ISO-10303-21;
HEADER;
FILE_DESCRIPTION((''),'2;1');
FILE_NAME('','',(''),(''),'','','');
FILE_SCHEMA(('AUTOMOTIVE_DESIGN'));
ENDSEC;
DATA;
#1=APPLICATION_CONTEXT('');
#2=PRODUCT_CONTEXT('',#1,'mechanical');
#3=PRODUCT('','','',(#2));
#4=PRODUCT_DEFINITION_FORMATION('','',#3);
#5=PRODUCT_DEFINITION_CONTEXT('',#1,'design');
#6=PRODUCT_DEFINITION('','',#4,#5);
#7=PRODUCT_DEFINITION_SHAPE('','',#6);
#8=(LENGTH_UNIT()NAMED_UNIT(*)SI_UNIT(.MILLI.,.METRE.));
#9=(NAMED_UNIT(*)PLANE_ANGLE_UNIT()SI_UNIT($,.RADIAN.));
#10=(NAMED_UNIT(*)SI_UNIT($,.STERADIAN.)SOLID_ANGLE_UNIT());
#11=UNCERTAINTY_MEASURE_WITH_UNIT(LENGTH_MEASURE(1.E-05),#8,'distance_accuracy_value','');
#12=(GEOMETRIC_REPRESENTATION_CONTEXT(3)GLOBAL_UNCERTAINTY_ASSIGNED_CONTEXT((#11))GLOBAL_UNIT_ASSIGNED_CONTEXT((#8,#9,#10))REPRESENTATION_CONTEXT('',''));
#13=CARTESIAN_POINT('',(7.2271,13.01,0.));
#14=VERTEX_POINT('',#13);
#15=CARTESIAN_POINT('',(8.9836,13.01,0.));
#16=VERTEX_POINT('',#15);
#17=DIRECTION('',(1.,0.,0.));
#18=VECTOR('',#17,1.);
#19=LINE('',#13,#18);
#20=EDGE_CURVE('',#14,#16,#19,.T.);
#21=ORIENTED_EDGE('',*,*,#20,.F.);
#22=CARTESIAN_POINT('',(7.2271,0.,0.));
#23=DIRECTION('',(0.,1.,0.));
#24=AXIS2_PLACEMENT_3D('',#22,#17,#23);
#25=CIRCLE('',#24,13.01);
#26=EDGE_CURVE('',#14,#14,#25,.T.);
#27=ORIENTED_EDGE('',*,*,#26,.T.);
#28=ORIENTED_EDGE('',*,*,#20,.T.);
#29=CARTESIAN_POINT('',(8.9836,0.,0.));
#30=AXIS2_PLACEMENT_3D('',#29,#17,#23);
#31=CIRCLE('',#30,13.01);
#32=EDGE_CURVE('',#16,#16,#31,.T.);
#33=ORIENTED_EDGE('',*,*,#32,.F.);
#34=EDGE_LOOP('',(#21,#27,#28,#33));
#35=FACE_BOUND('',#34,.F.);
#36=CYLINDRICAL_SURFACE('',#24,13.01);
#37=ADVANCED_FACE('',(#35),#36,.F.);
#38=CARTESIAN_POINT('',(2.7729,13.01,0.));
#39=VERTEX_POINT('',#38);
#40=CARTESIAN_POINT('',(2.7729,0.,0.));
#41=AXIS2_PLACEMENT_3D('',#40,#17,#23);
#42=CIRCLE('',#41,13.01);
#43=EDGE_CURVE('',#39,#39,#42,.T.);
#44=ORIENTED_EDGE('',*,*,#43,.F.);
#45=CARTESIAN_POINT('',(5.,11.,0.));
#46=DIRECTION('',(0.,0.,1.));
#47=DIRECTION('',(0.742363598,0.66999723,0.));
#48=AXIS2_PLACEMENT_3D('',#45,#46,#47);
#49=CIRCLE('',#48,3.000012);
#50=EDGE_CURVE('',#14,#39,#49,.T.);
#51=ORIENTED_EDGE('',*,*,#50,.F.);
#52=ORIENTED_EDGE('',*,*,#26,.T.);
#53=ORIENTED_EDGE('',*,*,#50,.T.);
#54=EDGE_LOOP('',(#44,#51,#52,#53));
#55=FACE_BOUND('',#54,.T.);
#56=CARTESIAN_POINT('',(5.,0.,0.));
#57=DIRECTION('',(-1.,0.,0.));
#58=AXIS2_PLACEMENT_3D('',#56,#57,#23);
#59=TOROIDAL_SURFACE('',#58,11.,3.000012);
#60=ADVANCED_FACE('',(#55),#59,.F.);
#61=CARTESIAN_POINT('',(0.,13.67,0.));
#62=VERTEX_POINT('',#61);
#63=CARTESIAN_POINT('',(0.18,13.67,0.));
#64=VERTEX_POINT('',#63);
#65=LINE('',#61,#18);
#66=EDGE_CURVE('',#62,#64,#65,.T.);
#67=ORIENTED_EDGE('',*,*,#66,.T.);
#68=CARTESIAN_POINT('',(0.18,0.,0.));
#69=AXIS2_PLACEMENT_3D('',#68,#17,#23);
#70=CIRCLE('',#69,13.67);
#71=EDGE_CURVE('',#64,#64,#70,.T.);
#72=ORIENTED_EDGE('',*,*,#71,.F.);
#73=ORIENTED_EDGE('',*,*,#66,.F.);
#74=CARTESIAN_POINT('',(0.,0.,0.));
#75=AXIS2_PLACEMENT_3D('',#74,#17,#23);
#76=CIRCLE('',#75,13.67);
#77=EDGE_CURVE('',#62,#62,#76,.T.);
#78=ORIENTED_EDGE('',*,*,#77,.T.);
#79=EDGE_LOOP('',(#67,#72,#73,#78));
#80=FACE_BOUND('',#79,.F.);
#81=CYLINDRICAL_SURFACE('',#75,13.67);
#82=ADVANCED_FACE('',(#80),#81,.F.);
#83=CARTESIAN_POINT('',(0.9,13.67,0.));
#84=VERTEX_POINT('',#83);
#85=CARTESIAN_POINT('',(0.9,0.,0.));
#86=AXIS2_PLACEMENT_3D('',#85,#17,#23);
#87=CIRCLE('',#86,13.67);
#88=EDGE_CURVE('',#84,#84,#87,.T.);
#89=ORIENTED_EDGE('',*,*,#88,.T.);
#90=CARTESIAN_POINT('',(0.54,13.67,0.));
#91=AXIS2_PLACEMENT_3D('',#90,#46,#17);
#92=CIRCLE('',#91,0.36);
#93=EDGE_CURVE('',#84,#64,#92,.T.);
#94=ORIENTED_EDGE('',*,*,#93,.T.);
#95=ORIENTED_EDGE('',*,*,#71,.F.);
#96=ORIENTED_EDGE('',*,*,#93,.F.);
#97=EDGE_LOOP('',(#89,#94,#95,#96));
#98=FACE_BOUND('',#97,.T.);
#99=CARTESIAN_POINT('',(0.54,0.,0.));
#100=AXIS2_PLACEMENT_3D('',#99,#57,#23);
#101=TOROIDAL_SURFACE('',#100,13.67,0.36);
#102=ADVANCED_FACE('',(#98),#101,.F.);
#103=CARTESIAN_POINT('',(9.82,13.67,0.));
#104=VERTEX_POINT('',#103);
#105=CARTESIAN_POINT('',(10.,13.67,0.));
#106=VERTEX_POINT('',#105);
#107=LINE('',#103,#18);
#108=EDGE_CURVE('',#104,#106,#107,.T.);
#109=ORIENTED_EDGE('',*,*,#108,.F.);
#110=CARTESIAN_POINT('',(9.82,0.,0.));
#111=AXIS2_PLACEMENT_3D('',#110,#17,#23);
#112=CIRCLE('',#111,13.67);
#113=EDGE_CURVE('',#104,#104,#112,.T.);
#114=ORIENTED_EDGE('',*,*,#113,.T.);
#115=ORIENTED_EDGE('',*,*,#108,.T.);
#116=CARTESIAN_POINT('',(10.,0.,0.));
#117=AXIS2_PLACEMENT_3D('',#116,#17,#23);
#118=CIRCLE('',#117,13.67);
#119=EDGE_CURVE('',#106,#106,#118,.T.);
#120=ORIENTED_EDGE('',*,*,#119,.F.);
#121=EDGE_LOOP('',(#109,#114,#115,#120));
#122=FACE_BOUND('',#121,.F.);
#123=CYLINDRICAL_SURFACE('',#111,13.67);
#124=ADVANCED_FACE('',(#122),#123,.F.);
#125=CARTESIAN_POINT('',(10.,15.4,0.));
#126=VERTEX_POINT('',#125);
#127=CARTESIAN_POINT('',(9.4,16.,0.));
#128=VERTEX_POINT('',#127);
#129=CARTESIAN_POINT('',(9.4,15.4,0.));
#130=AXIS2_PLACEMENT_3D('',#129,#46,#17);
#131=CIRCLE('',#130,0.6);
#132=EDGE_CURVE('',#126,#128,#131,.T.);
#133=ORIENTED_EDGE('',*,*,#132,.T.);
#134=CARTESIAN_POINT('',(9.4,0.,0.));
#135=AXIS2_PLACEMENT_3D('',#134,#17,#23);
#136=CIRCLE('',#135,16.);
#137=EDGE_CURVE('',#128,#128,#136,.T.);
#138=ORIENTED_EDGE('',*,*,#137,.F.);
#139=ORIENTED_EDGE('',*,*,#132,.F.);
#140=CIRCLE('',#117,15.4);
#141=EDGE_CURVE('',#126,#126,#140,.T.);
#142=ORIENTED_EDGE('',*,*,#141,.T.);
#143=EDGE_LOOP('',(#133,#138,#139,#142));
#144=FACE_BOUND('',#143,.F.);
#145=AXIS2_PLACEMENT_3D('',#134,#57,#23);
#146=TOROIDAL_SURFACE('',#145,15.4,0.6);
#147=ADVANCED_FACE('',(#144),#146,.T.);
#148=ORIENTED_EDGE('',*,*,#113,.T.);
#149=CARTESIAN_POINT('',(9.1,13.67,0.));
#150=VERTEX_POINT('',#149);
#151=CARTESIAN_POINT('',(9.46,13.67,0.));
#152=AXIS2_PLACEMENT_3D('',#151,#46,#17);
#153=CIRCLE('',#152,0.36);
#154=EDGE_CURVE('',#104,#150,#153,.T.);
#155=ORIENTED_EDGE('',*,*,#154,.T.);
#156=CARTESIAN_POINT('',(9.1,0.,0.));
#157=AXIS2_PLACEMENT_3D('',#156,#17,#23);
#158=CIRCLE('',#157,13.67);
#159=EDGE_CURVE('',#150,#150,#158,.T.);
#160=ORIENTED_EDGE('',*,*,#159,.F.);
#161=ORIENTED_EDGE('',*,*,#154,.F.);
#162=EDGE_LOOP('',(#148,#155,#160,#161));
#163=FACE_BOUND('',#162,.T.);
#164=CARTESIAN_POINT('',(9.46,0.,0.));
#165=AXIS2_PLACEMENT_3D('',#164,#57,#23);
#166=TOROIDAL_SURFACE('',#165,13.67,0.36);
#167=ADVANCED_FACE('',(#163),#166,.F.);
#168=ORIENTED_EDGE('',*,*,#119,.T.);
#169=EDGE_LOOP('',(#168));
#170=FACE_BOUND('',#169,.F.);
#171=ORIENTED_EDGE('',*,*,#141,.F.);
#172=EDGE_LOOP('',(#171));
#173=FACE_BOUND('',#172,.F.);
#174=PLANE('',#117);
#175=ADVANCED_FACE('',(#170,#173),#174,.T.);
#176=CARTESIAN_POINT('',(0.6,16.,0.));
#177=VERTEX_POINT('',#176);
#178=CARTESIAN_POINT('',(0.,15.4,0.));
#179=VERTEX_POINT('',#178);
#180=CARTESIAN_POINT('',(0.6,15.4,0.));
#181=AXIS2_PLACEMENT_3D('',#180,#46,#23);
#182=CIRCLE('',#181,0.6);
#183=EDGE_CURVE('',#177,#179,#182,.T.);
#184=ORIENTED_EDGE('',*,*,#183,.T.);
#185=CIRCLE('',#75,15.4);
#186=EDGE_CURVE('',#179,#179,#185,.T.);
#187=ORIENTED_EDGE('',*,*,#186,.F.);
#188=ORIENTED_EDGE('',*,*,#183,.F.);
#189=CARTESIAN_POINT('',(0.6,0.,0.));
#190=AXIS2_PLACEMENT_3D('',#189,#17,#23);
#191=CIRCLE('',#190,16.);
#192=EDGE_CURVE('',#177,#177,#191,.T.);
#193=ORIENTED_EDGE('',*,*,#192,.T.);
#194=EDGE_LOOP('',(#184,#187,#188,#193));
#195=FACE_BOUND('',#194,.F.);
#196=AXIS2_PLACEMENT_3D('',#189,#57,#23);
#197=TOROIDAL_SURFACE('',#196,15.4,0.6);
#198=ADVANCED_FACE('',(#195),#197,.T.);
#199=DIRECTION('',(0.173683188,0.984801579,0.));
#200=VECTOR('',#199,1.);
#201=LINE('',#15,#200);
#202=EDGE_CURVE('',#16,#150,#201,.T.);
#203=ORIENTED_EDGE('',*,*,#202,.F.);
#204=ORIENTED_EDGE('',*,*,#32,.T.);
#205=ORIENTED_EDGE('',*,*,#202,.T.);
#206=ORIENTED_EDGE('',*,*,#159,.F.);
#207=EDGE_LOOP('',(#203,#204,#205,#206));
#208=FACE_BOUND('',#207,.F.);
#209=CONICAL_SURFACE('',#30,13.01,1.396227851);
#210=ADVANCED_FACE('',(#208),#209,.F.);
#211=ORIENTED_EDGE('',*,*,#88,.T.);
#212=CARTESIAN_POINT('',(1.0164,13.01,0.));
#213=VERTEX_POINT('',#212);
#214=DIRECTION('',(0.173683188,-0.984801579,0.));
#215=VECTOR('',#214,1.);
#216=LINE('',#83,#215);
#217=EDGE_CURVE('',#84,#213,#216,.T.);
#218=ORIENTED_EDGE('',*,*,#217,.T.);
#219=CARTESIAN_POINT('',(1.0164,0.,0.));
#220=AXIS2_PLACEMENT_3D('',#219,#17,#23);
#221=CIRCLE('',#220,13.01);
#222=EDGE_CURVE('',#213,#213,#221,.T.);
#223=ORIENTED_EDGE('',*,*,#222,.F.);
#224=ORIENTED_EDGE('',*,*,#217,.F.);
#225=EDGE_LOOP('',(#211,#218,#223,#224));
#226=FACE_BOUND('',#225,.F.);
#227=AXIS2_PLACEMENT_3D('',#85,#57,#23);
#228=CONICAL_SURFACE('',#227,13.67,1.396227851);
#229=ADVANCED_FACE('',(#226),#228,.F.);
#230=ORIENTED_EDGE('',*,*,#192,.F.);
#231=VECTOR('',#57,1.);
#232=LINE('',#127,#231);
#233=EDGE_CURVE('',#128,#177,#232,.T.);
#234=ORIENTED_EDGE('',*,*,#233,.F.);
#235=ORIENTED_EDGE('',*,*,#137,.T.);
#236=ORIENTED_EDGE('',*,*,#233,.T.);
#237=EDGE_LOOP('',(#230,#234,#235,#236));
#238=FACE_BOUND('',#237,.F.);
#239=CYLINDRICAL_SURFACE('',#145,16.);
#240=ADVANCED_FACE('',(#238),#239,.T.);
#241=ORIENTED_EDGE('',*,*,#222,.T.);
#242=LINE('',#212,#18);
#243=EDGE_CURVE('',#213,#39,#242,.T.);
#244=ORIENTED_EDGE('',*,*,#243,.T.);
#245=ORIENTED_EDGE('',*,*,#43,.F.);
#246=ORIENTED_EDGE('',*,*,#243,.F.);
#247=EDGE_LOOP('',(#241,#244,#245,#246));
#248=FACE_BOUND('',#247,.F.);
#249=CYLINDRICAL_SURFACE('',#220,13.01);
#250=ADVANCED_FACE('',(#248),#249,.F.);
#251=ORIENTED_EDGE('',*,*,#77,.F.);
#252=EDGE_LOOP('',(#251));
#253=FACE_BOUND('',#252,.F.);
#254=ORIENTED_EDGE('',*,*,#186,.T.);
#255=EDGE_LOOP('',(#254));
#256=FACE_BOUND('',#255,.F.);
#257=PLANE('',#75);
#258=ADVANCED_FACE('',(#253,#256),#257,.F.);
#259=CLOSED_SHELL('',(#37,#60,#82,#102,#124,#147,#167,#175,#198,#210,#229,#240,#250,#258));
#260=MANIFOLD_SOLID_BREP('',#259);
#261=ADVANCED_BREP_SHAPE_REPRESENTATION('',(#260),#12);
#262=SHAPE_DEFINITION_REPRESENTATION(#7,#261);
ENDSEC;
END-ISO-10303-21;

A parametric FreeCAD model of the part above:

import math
import FreeCAD as App
import Part
import Sketcher
Q = App.Units.Quantity

doc = App.newDocument("Part")
params = doc.addObject("Spreadsheet::Sheet", "Params")
for row, (alias, value) in enumerate([
    ("sketch1_radius", "3 mm"),
    ("sketch1_radius2", "0.6 mm"),
    ("sketch1_radius3", "0.36 mm"),
    ("sketch1_width", "8.8 mm"),
    ("sketch1_width2", "0.18 mm"),
    ("revolution_angle", "360 deg"),
], start=1):
    params.set(f"A{row}", alias)
    params.set(f"B{row}", "=" + value)
    params.setAlias(f"B{row}", alias)

body = doc.addObject("PartDesign::Body", "Body")

# Sketch on XY plane
sketch1 = body.newObject("Sketcher::SketchObject", "Sketch")
sketch1.AttachmentSupport = (doc.getObject("XY_Plane"), [""])
sketch1.MapMode = "FlatFace"
sketch1.addGeometry(Part.ArcOfCircle(Part.Circle(App.Vector(0.6, 15.4, 0), App.Vector(0, 0, 1), 0.6), math.radians(90), math.radians(180)), False)
sketch1.addGeometry(Part.LineSegment(App.Vector(0, 15.4, 0), App.Vector(0, 13.67, 0)), False)
sketch1.addGeometry(Part.LineSegment(App.Vector(0, 13.67, 0), App.Vector(0.18, 13.67, 0)), False)
sketch1.addGeometry(Part.ArcOfCircle(Part.Circle(App.Vector(0.54, 13.67, 0), App.Vector(0, 0, 1), 0.36), math.radians(0), math.radians(180)), False)
sketch1.addGeometry(Part.LineSegment(App.Vector(0.9, 13.67, 0), App.Vector(1.0164, 13.01, 0)), False)
sketch1.addGeometry(Part.LineSegment(App.Vector(1.0164, 13.01, 0), App.Vector(2.7729, 13.01, 0)), False)
sketch1.addGeometry(Part.ArcOfCircle(Part.Circle(App.Vector(5, 11, 0), App.Vector(0, 0, 1), 3.000012), math.radians(42.066851), math.radians(137.933149)), False)
sketch1.addGeometry(Part.LineSegment(App.Vector(7.2271, 13.01, 0), App.Vector(8.9836, 13.01, 0)), False)
sketch1.addGeometry(Part.LineSegment(App.Vector(8.9836, 13.01, 0), App.Vector(9.1, 13.67, 0)), False)
sketch1.addGeometry(Part.ArcOfCircle(Part.Circle(App.Vector(9.46, 13.67, 0), App.Vector(0, 0, 1), 0.36), math.radians(0), math.radians(180)), False)
sketch1.addGeometry(Part.LineSegment(App.Vector(9.82, 13.67, 0), App.Vector(10, 13.67, 0)), False)
sketch1.addGeometry(Part.LineSegment(App.Vector(10, 13.67, 0), App.Vector(10, 15.4, 0)), False)
sketch1.addGeometry(Part.ArcOfCircle(Part.Circle(App.Vector(9.4, 15.4, 0), App.Vector(0, 0, 1), 0.6), math.radians(0), math.radians(90)), False)
sketch1.addGeometry(Part.LineSegment(App.Vector(9.4, 16, 0), App.Vector(0.6, 16, 0)), False)
sketch1.addConstraint(Sketcher.Constraint("Tangent", 0, 2, 1, 1))
sketch1.addConstraint(Sketcher.Constraint("Coincident", 1, 2, 2, 1))
sketch1.addConstraint(Sketcher.Constraint("Coincident", 2, 2, 3, 2))
sketch1.addConstraint(Sketcher.Constraint("Coincident", 3, 1, 4, 1))
sketch1.addConstraint(Sketcher.Constraint("Coincident", 4, 2, 5, 1))
sketch1.addConstraint(Sketcher.Constraint("Coincident", 5, 2, 6, 2))
sketch1.addConstraint(Sketcher.Constraint("Coincident", 6, 1, 7, 1))
sketch1.addConstraint(Sketcher.Constraint("Coincident", 7, 2, 8, 1))
sketch1.addConstraint(Sketcher.Constraint("Coincident", 8, 2, 9, 2))
sketch1.addConstraint(Sketcher.Constraint("Coincident", 9, 1, 10, 1))
sketch1.addConstraint(Sketcher.Constraint("Coincident", 10, 2, 11, 1))
sketch1.addConstraint(Sketcher.Constraint("Tangent", 11, 2, 12, 1))
sketch1.addConstraint(Sketcher.Constraint("Tangent", 12, 2, 13, 1))
sketch1.addConstraint(Sketcher.Constraint("Tangent", 13, 2, 0, 1))
sketch1.addConstraint(Sketcher.Constraint("Vertical", 1))
sketch1.addConstraint(Sketcher.Constraint("Horizontal", 2))
sketch1.addConstraint(Sketcher.Constraint("Horizontal", 5))
sketch1.addConstraint(Sketcher.Constraint("Horizontal", 7))
sketch1.addConstraint(Sketcher.Constraint("Horizontal", 10))
sketch1.addConstraint(Sketcher.Constraint("Vertical", 11))
sketch1.addConstraint(Sketcher.Constraint("Horizontal", 13))
sketch1.addConstraint(Sketcher.Constraint("Equal", 3, 9))
sketch1.addConstraint(Sketcher.Constraint("Equal", 0, 12))
sketch1.addConstraint(Sketcher.Constraint("PointOnObject", 0, 2, -2))
sketch1.addConstraint(Sketcher.Constraint("Horizontal", 3, 3, 9, 3))
sketch1.addConstraint(Sketcher.Constraint("Horizontal", 9, 3, 1, 2))
sketch1.addConstraint(Sketcher.Constraint("Horizontal", 2, 2, 3, 1))
sketch1.addConstraint(Sketcher.Constraint("Horizontal", 5, 2, 6, 1))
sketch1.addConstraint(Sketcher.Constraint("Horizontal", 3, 1, 8, 2))
sketch1.addConstraint(Sketcher.Constraint("Horizontal", 8, 2, 9, 1))
sketch1.addConstraint(Sketcher.Constraint("Equal", 5, 7))
sketch1.addConstraint(Sketcher.Constraint("Equal", 2, 10))
sketch1.addConstraint(Sketcher.Constraint("Equal", 4, 8))
sketch1.addConstraint(Sketcher.Constraint("Radius", 6, Q("3 mm")))
sketch1.addConstraint(Sketcher.Constraint("Radius", 0, Q("0.6 mm")))
sketch1.addConstraint(Sketcher.Constraint("Radius", 3, Q("0.36 mm")))
sketch1.addConstraint(Sketcher.Constraint("DistanceX", 13, 2, 13, 1, Q("8.8 mm")))
sketch1.addConstraint(Sketcher.Constraint("DistanceY", -1, 1, 6, 3, Q("11 mm")))
sketch1.addConstraint(Sketcher.Constraint("DistanceY", -1, 1, 12, 2, Q("16 mm")))
sketch1.addConstraint(Sketcher.Constraint("DistanceX", 2, 1, 2, 2, Q("0.18 mm")))
sketch1.addConstraint(Sketcher.Constraint("DistanceY", 1, 2, 1, 1, Q("1.73 mm")))
sketch1.addConstraint(Sketcher.Constraint("DistanceY", -1, 1, 4, 2, Q("13.01 mm")))
sketch1.addConstraint(Sketcher.Constraint("DistanceX", 5, 1, 5, 2, Q("1.7565 mm")))
sketch1.setExpression("Constraints[33]", "Params.sketch1_radius")
sketch1.setExpression("Constraints[34]", "Params.sketch1_radius2")
sketch1.setExpression("Constraints[35]", "Params.sketch1_radius3")
sketch1.setExpression("Constraints[36]", "Params.sketch1_width")
sketch1.setExpression("Constraints[39]", "Params.sketch1_width2")
revolution = body.newObject("PartDesign::Revolution", "Revolution")
revolution.Profile = sketch1
revolution.ReferenceAxis = (sketch1, ["H_Axis"])
revolution.setExpression("Angle", "Params.revolution_angle")

doc.recompute()
